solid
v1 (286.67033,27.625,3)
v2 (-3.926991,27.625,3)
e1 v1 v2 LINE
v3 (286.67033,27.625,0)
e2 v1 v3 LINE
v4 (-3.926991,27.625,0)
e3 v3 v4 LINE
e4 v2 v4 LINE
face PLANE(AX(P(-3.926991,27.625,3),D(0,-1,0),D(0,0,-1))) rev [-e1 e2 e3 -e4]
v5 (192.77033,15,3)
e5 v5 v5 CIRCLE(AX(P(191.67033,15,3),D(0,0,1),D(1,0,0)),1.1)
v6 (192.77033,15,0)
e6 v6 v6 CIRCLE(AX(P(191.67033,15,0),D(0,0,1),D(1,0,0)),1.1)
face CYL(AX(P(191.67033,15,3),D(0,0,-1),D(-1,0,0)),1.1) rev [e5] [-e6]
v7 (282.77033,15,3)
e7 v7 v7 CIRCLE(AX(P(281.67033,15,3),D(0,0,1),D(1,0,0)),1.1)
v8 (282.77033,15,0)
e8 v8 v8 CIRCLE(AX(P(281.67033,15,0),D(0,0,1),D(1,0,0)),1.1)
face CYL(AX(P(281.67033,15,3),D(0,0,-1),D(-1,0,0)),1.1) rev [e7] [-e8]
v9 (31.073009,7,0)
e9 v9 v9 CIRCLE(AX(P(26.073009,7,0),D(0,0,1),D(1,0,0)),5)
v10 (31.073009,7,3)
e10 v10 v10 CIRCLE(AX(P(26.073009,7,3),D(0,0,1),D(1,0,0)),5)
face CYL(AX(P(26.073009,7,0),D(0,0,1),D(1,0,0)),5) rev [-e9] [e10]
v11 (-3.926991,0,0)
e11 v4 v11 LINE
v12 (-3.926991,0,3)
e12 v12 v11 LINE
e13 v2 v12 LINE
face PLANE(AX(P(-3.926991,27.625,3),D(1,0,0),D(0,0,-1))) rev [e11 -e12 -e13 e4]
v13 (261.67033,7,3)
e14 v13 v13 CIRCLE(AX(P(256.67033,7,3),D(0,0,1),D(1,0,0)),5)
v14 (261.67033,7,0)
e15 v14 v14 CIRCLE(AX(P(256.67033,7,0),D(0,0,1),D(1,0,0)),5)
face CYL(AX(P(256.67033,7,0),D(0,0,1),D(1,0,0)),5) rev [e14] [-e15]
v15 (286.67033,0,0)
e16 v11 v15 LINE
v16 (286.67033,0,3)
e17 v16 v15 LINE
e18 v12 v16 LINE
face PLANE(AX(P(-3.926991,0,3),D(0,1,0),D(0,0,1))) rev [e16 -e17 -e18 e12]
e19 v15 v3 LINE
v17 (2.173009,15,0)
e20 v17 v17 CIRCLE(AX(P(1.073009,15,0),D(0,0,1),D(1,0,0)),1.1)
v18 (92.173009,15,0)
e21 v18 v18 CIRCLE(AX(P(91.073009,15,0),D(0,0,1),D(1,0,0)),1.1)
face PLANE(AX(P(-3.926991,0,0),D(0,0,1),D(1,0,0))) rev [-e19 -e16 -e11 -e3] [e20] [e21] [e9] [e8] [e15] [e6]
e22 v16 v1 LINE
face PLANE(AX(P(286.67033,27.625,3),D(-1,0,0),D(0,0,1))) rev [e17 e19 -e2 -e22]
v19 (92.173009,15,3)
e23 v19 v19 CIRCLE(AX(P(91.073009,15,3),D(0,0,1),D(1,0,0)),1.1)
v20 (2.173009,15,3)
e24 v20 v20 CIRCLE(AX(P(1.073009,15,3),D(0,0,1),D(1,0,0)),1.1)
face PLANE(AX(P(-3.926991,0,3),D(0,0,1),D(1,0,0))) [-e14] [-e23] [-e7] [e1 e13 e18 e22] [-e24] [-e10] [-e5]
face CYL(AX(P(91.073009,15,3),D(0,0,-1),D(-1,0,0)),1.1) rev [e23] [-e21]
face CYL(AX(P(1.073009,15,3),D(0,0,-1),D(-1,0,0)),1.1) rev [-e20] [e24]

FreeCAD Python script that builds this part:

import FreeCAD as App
import Part
import Sketcher
Q = App.Units.Quantity


def add_polygon(sketch, points):
    """Adds a closed chain of lines whose ends are joined by coincident constraints."""
    first, n = sketch.GeometryCount, len(points)
    for a, b in zip(points, points[1:] + points[:1]):
        sketch.addGeometry(Part.LineSegment(App.Vector(*a, 0), App.Vector(*b, 0)), False)
    for i in range(n):
        sketch.addConstraint(Sketcher.Constraint("Coincident", first + i, 2, first + (i + 1) % n, 1))

doc = App.newDocument("Part")
body = doc.addObject("PartDesign::Body", "Body")

# Sketch on XY plane
sketch1 = body.newObject("Sketcher::SketchObject", "Sketch")
sketch1.AttachmentSupport = (doc.getObject("XY_Plane"), [""])
sketch1.MapMode = "FlatFace"
add_polygon(sketch1, [(-3.926991, 27.625), (-3.926991, 0), (286.67033, 0), (286.67033, 27.625)])  # lines 0-3
sketch1.addGeometry(Part.Circle(App.Vector(1.073009, 15, 0), App.Vector(0, 0, 1), 1.1), False)  # 4
sketch1.addGeometry(Part.Circle(App.Vector(91.073009, 15, 0), App.Vector(0, 0, 1), 1.1), False)  # 5
sketch1.addGeometry(Part.Circle(App.Vector(191.67033, 15, 0), App.Vector(0, 0, 1), 1.1), False)  # 6
sketch1.addGeometry(Part.Circle(App.Vector(281.67033, 15, 0), App.Vector(0, 0, 1), 1.1), False)  # 7
sketch1.addConstraint([
    Sketcher.Constraint("Vertical", 0),
    Sketcher.Constraint("Horizontal", 1),
    Sketcher.Constraint("Vertical", 2),
    Sketcher.Constraint("Horizontal", 3),
    Sketcher.Constraint("Equal", 4, 5),
    Sketcher.Constraint("Equal", 5, 6),
    Sketcher.Constraint("Equal", 6, 7),
    Sketcher.Constraint("PointOnObject", 0, 2, -1),
    Sketcher.Constraint("Horizontal", 4, 3, 5, 3),
    Sketcher.Constraint("Horizontal", 5, 3, 6, 3),
    Sketcher.Constraint("Horizontal", 6, 3, 7, 3),
    Sketcher.Constraint("Diameter", 4, Q("2.2 mm")),
    Sketcher.Constraint("DistanceY", -1, 1, 4, 3, Q("15 mm")),
    Sketcher.Constraint("DistanceX", 4, 3, 5, 3, Q("90 mm")),
    Sketcher.Constraint("DistanceX", 6, 3, 7, 3, Q("90 mm")),
    Sketcher.Constraint("DistanceX", 0, 2, 4, 3, Q("5 mm")),
    Sketcher.Constraint("DistanceX", 7, 3, 1, 2, Q("5 mm")),
    Sketcher.Constraint("DistanceY", 0, 2, 0, 1, Q("27.625 mm")),
    Sketcher.Constraint("DistanceX", 1, 1, 1, 2, Q("290.59732 mm")),
    Sketcher.Constraint("DistanceX", -1, 1, 4, 3, Q("1.073009 mm")),
])
pad1 = body.newObject("PartDesign::Pad", "Pad")
pad1.Profile = sketch1
pad1.Length = 3

# Sketch on XY plane
sketch2 = body.newObject("Sketcher::SketchObject", "Sketch001")
sketch2.AttachmentSupport = (doc.getObject("XY_Plane"), [""])
sketch2.MapMode = "FlatFace"
sketch2.AttachmentOffset = App.Placement(App.Vector(0, 0, 3), App.Rotation())
sketch2.addGeometry([
    Part.Circle(App.Vector(26.073009, 7, 0), App.Vector(0, 0, 1), 5),
    Part.Circle(App.Vector(256.67033, 7, 0), App.Vector(0, 0, 1), 5),
], False)
sketch2.addConstraint([
    Sketcher.Constraint("Equal", 0, 1),
    Sketcher.Constraint("Horizontal", 0, 3, 1, 3),
    Sketcher.Constraint("Diameter", 0, Q("10 mm")),
    Sketcher.Constraint("DistanceY", -1, 1, 0, 3, Q("7 mm")),
    Sketcher.Constraint("DistanceX", -1, 1, 0, 3, Q("26.073009 mm")),
    Sketcher.Constraint("DistanceX", -1, 1, 1, 3, Q("256.67033 mm")),
])
pocket1 = body.newObject("PartDesign::Pocket", "Pocket")
pocket1.Profile = sketch2
pocket1.Type = "ThroughAll"

doc.recompute()
